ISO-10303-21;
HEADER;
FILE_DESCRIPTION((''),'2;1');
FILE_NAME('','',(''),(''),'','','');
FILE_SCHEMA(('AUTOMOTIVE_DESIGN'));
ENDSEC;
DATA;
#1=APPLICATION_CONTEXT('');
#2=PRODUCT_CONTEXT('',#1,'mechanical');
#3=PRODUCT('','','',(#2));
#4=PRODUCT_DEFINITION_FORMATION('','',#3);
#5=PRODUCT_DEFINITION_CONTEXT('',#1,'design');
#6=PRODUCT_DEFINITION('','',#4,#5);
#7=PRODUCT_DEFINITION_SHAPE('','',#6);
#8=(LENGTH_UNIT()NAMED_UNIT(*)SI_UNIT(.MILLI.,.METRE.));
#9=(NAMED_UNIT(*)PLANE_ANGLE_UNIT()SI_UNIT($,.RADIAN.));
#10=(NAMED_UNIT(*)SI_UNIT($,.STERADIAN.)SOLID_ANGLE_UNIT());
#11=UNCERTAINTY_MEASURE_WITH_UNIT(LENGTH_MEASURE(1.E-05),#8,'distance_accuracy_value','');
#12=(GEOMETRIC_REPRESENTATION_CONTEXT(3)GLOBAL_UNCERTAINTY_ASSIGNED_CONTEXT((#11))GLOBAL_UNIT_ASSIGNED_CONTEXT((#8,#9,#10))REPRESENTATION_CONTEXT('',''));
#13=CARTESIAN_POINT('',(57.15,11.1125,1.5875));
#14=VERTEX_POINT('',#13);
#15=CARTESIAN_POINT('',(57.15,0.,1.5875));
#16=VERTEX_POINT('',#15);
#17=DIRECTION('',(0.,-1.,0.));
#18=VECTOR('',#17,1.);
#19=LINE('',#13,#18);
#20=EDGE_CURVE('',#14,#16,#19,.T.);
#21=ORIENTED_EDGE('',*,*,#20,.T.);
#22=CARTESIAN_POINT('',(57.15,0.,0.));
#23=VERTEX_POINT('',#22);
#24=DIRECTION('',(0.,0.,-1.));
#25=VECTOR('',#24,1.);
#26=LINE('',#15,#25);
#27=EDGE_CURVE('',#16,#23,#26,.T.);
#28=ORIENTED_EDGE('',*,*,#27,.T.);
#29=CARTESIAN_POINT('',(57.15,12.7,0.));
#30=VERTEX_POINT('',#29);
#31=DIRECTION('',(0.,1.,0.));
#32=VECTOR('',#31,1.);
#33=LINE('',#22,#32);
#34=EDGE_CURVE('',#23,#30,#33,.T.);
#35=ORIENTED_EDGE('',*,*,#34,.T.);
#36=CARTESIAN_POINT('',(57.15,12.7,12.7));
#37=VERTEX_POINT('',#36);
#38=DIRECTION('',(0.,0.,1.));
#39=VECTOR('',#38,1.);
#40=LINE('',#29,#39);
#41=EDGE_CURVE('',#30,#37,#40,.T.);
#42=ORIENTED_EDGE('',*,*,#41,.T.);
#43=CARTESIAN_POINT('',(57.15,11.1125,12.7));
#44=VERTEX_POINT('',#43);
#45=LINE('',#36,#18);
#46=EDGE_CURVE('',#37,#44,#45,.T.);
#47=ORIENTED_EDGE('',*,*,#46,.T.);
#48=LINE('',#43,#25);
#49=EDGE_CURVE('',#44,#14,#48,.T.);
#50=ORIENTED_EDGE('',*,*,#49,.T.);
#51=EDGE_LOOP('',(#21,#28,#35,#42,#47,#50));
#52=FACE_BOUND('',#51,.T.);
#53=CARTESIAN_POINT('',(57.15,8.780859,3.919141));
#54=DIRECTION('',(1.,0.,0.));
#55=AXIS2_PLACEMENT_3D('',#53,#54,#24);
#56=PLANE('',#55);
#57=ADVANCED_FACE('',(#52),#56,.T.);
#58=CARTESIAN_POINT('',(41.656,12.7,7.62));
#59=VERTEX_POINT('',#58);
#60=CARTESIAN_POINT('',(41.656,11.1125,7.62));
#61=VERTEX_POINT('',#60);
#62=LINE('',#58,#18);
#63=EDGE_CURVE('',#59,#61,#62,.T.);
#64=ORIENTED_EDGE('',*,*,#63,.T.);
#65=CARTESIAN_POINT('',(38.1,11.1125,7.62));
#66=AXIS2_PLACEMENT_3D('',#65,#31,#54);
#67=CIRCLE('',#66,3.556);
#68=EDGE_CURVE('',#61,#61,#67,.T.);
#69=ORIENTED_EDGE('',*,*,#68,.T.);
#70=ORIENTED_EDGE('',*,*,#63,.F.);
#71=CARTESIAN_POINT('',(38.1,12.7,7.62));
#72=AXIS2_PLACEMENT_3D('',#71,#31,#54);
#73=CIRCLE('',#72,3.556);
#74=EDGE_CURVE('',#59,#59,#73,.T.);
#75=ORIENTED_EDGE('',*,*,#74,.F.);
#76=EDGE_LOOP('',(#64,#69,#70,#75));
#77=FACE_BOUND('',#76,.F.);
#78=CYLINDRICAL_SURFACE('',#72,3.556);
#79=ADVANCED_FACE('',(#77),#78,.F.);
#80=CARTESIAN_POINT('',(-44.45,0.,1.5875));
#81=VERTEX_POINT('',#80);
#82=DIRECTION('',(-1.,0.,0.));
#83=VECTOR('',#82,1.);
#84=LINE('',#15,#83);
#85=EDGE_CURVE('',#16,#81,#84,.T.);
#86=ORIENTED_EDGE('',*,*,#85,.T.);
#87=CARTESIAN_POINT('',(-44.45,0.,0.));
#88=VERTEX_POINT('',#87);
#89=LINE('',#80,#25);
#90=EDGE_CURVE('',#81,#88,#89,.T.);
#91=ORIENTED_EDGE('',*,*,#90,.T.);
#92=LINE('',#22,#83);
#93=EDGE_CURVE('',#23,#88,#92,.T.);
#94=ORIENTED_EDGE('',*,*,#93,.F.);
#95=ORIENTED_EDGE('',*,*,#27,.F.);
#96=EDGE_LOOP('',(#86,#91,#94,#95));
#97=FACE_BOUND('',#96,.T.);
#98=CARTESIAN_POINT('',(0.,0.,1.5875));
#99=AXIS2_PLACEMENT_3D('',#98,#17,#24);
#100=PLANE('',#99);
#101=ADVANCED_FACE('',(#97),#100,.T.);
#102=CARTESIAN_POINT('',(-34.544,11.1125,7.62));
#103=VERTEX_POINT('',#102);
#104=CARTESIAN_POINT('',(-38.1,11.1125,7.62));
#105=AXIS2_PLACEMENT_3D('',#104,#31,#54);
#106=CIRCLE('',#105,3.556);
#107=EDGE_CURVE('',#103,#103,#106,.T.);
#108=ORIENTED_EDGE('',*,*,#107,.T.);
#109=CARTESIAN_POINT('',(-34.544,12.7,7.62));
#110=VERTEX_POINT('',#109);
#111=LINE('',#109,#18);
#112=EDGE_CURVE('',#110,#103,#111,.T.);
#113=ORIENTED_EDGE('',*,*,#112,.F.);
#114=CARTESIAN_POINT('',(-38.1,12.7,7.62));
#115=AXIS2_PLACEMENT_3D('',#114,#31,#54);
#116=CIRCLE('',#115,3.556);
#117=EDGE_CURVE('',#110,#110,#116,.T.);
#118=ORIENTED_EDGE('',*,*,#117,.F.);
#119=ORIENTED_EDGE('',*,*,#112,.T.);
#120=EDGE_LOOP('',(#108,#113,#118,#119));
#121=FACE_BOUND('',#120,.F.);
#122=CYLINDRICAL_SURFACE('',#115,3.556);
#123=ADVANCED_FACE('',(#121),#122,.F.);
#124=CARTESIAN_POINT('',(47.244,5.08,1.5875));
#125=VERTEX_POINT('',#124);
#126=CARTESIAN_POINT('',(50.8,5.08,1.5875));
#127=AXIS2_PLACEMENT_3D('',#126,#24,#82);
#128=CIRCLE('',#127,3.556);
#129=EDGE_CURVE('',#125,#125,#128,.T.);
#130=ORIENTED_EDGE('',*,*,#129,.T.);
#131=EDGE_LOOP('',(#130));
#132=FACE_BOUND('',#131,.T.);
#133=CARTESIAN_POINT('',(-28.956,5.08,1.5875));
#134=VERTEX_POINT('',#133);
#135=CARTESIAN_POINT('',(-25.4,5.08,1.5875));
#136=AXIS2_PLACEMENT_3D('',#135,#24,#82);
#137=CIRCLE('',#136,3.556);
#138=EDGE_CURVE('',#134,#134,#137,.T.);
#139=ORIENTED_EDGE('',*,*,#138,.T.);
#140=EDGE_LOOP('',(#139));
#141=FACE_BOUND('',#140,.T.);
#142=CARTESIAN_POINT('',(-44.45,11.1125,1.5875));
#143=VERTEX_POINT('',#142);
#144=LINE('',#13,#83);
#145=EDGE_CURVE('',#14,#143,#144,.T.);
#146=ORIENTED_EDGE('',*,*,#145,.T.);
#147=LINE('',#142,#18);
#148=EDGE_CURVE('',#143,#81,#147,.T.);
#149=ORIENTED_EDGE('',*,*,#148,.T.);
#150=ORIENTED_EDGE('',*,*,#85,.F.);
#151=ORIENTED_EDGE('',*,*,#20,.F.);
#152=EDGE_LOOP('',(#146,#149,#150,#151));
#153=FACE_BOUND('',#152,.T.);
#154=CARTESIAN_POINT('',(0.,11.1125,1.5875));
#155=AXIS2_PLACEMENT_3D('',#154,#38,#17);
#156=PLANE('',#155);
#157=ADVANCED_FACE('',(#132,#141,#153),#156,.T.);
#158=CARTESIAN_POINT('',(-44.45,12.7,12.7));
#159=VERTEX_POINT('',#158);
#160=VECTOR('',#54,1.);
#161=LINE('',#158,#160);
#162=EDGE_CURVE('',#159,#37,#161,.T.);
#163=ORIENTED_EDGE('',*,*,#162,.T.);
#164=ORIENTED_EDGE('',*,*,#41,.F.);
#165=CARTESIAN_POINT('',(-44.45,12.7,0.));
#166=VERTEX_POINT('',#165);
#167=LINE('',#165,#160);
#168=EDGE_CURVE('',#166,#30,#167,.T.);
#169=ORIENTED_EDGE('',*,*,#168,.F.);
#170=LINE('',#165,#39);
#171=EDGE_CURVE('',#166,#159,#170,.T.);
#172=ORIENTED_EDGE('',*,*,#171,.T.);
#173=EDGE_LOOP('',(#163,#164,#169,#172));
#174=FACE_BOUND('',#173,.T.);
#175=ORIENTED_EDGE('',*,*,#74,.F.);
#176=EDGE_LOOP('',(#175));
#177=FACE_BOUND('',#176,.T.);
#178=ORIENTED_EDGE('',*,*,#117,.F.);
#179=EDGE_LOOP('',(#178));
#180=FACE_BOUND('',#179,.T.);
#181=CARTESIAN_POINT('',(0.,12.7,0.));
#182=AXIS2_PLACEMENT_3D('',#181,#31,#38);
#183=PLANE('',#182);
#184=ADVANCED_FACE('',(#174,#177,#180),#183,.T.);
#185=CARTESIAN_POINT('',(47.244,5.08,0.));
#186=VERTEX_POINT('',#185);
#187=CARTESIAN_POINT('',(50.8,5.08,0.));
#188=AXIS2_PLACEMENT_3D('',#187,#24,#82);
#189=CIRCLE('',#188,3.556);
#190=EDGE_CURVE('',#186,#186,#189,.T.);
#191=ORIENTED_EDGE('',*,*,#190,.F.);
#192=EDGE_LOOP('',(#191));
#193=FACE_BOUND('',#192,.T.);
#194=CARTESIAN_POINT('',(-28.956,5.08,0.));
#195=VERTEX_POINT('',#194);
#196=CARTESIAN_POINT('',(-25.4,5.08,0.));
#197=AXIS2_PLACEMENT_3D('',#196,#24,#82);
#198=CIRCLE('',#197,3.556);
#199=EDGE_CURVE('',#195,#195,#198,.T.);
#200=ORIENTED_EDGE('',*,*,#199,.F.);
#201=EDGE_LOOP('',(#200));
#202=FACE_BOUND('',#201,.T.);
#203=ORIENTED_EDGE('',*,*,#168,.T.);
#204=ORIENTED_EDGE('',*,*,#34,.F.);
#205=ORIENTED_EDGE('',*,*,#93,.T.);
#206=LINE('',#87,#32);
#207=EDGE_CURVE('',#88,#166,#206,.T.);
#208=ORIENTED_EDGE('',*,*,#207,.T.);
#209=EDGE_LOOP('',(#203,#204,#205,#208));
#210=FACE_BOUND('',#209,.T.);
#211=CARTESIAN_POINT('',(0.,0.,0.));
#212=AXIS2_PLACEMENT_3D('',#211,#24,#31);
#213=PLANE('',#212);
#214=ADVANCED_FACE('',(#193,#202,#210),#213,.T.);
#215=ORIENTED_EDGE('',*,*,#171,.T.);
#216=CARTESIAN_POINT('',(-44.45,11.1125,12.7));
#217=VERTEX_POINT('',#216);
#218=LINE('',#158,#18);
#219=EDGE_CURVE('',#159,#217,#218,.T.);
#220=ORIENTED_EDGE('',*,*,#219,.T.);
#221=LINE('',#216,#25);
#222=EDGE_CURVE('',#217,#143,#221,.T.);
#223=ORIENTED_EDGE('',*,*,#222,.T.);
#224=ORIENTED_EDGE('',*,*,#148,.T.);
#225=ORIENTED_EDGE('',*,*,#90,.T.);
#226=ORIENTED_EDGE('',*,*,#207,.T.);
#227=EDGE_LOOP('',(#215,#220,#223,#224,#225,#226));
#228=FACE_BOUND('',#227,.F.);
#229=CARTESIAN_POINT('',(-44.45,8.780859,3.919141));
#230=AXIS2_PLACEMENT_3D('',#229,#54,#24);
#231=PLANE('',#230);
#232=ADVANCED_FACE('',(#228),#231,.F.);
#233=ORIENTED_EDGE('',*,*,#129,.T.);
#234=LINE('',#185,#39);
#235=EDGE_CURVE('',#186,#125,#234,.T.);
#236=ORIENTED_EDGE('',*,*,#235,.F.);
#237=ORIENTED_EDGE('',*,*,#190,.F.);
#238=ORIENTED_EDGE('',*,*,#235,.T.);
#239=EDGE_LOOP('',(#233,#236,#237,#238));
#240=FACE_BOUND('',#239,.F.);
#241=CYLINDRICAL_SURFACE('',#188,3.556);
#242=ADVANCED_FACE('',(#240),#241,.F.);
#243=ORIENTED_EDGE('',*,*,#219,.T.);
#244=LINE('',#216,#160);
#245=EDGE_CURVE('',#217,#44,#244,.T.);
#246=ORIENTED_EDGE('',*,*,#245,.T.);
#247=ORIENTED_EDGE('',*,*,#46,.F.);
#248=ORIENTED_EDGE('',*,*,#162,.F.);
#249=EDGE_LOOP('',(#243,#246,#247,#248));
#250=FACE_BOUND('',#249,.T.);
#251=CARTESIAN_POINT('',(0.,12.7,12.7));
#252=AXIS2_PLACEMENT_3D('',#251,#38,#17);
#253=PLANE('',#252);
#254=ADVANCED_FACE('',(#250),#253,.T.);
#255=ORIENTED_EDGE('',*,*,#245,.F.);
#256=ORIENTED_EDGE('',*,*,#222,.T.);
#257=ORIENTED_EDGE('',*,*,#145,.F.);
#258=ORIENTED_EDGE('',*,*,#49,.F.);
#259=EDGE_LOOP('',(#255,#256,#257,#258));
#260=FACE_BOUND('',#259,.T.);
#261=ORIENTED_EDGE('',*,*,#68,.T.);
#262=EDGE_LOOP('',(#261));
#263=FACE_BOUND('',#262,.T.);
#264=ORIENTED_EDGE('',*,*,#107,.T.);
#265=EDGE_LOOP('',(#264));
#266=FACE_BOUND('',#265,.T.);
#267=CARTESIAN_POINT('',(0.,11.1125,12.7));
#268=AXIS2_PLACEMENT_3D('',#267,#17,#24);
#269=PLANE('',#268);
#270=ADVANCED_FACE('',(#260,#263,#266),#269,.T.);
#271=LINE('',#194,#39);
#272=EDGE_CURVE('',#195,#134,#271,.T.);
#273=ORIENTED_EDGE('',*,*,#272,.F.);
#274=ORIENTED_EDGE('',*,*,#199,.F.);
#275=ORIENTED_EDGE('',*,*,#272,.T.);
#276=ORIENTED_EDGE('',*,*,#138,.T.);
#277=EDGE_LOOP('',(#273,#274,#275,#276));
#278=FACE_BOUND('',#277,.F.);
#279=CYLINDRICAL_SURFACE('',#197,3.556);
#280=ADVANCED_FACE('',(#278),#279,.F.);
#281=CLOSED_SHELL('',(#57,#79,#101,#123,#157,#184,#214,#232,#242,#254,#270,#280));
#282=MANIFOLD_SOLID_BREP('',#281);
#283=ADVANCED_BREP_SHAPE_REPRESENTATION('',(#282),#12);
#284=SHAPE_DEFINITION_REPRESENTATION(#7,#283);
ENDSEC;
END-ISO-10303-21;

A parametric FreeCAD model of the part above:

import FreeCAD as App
import Part
import Sketcher
Q = App.Units.Quantity


def add_polygon(sketch, points):
    """Adds a closed chain of lines whose ends are joined by coincident constraints."""
    first, n = sketch.GeometryCount, len(points)
    for a, b in zip(points, points[1:] + points[:1]):
        sketch.addGeometry(Part.LineSegment(App.Vector(*a, 0), App.Vector(*b, 0)), False)
    for i in range(n):
        sketch.addConstraint(Sketcher.Constraint("Coincident", first + i, 2, first + (i + 1) % n, 1))

doc = App.newDocument("Part")
params = doc.addObject("Spreadsheet::Sheet", "Params")
for row, (alias, value) in enumerate([
    ("sketch1_width", "0.5 in"),
    ("sketch1_width2", "0.0625 in"),
    ("pad1_length", "2.25 in"),
    ("pad1_length2", "1.75 in"),
    ("sketch2_diameter", "0.28 in"),
    ("sketch3_diameter", "0.28 in"),
], start=1):
    params.set(f"A{row}", alias)
    params.set(f"B{row}", "=" + value)
    params.setAlias(f"B{row}", alias)

body = doc.addObject("PartDesign::Body", "Body")

# Sketch on YZ plane
sketch1 = body.newObject("Sketcher::SketchObject", "Sketch")
sketch1.AttachmentSupport = (doc.getObject("YZ_Plane"), [""])
sketch1.MapMode = "FlatFace"
add_polygon(sketch1, [(0, 0), (12.7, 0), (12.7, 12.7), (11.1, 12.7), (11.1, 1.6), (0, 1.6)])  # lines 0-5
sketch1.addConstraint([
    Sketcher.Constraint("Horizontal", 0),
    Sketcher.Constraint("Vertical", 1),
    Sketcher.Constraint("Horizontal", 2),
    Sketcher.Constraint("Vertical", 3),
    Sketcher.Constraint("Horizontal", 4),
    Sketcher.Constraint("Vertical", 5),
    Sketcher.Constraint("Coincident", 5, 2, -1, 1),
    Sketcher.Constraint("Equal", 0, 1),
    Sketcher.Constraint("Equal", 4, 3),
    Sketcher.Constraint("DistanceX", 0, 1, 0, 2, Q("0.5 in")),
    Sketcher.Constraint("DistanceX", 2, 2, 2, 1, Q("0.0625 in")),
])
sketch1.setExpression("Constraints[15]", "Params.sketch1_width")
sketch1.setExpression("Constraints[16]", "Params.sketch1_width2")
pad1 = body.newObject("PartDesign::Pad", "Pad")
pad1.Profile = sketch1
pad1.Type = "TwoLengths"
pad1.setExpression("Length", "Params.pad1_length")
pad1.setExpression("Length2", "Params.pad1_length2")

# Sketch on XY plane
sketch2 = body.newObject("Sketcher::SketchObject", "Sketch001")
sketch2.AttachmentSupport = (doc.getObject("XY_Plane"), [""])
sketch2.MapMode = "FlatFace"
sketch2.addGeometry([
    Part.Circle(App.Vector(-25.4, 5.1, 0), App.Vector(0, 0, 1), 3.6),
    Part.Circle(App.Vector(50.8, 5.1, 0), App.Vector(0, 0, 1), 3.6),
], False)
sketch2.addConstraint([
    Sketcher.Constraint("Equal", 0, 1),
    Sketcher.Constraint("Horizontal", 0, 3, 1, 3),
    Sketcher.Constraint("Diameter", 0, Q("0.28 in")),
    Sketcher.Constraint("DistanceX", 0, 3, -1, 1, Q("1 in")),
    Sketcher.Constraint("DistanceX", -1, 1, 1, 3, Q("2 in")),
    Sketcher.Constraint("DistanceY", -1, 1, 0, 3, Q("0.2 in")),
])
sketch2.setExpression("Constraints[2]", "Params.sketch2_diameter")
pocket1 = body.newObject("PartDesign::Pocket", "Pocket")
pocket1.Profile = sketch2
pocket1.Type = "ThroughAll"
pocket1.Reversed = True

# Sketch on XZ plane
sketch3 = body.newObject("Sketcher::SketchObject", "Sketch002")
sketch3.AttachmentSupport = (doc.getObject("XZ_Plane"), [""])
sketch3.MapMode = "FlatFace"
sketch3.AttachmentOffset = App.Placement(App.Vector(0, 0, -0.5 * 25.4), App.Rotation())
sketch3.addGeometry([
    Part.Circle(App.Vector(-38.1, 7.6, 0), App.Vector(0, 0, 1), 3.6),
    Part.Circle(App.Vector(38.1, 7.6, 0), App.Vector(0, 0, 1), 3.6),
], False)
sketch3.addConstraint([
    Sketcher.Constraint("Equal", 0, 1),
    Sketcher.Constraint("Symmetric", 0, 3, 1, 3, -2),
    Sketcher.Constraint("Diameter", 0, Q("0.28 in")),
    Sketcher.Constraint("DistanceX", 0, 3, 1, 3, Q("3 in")),
    Sketcher.Constraint("DistanceY", -1, 1, 0, 3, Q("0.3 in")),
])
sketch3.setExpression("Constraints[2]", "Params.sketch3_diameter")
pocket2 = body.newObject("PartDesign::Pocket", "Pocket001")
pocket2.Profile = sketch3
pocket2.Type = "ThroughAll"
pocket2.Reversed = True

doc.recompute()
